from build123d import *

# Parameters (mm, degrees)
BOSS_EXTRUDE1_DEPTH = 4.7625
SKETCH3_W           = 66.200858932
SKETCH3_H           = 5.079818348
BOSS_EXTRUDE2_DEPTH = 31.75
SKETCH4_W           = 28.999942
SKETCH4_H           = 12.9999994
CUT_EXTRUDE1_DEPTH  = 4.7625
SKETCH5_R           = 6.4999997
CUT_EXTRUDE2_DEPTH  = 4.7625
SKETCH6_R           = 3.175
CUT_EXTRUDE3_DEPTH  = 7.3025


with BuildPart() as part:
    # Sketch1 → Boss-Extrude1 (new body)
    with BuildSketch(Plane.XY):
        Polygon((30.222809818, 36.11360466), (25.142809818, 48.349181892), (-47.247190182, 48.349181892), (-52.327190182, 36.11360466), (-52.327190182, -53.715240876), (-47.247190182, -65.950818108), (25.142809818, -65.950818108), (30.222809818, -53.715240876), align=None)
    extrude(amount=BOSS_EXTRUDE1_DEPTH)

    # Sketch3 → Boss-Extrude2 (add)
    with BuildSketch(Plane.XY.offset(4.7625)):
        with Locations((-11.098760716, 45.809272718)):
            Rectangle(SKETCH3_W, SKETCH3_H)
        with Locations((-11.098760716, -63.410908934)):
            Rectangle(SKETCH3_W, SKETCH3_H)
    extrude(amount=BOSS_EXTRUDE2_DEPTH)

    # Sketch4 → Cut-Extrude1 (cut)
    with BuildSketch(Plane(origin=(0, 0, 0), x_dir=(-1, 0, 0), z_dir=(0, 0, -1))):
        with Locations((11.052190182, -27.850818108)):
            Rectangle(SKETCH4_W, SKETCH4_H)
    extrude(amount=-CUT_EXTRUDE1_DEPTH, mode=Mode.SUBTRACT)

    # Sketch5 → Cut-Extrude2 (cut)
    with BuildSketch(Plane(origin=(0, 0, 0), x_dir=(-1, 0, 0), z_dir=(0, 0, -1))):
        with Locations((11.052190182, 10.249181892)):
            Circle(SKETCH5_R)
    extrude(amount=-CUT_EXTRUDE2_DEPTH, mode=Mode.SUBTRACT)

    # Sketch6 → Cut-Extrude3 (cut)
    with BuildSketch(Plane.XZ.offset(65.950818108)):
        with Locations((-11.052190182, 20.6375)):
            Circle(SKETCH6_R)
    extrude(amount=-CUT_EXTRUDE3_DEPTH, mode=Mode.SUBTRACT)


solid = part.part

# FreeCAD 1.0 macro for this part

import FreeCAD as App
import Part
import Sketcher
Q = App.Units.Quantity


def add_polygon(sketch, points):
    """Adds a closed chain of lines whose ends are joined by coincident constraints."""
    first, n = sketch.GeometryCount, len(points)
    for a, b in zip(points, points[1:] + points[:1]):
        sketch.addGeometry(Part.LineSegment(App.Vector(*a, 0), App.Vector(*b, 0)), False)
    for i in range(n):
        sketch.addConstraint(Sketcher.Constraint("Coincident", first + i, 2, first + (i + 1) % n, 1))

doc = App.newDocument("Part")
body = doc.addObject("PartDesign::Body", "Body")

sketch1 = body.newObject("Sketcher::SketchObject", "Sketch")
sketch1.AttachmentSupport = (doc.getObject("XY_Plane"), [""])
sketch1.MapMode = "FlatFace"
add_polygon(sketch1, [(30, 36), (25, 48), (-47, 48), (-52, 36), (-52, -54), (-47, -66), (25, -66), (30, -54)])
sketch1.addConstraint(Sketcher.Constraint("Horizontal", 1))
sketch1.addConstraint(Sketcher.Constraint("Vertical", 3))
sketch1.addConstraint(Sketcher.Constraint("Horizontal", 5))
sketch1.addConstraint(Sketcher.Constraint("Vertical", 7))
sketch1.addConstraint(Sketcher.Constraint("Parallel", 0, 4))
sketch1.addConstraint(Sketcher.Constraint("Parallel", 2, 6))
sketch1.addConstraint(Sketcher.Constraint("Horizontal", 3, 2, 6, 2))
sketch1.addConstraint(Sketcher.Constraint("Horizontal", 2, 2, 7, 2))
sketch1.addConstraint(Sketcher.Constraint("Vertical", 1, 2, 4, 2))
sketch1.addConstraint(Sketcher.Constraint("Vertical", 0, 2, 5, 2))
sketch1.addConstraint(Sketcher.Constraint("DistanceX", 1, 2, 1, 1, Q("2.85 in")))
sketch1.addConstraint(Sketcher.Constraint("DistanceX", 2, 2, 1, 2, Q("0.2 in")))
sketch1.addConstraint(Sketcher.Constraint("DistanceY", 4, 2, 1, 2, Q("4.5 in")))
sketch1.addConstraint(Sketcher.Constraint("DistanceY", 3, 2, 3, 1, 89.828846))
sketch1.addConstraint(Sketcher.Constraint("DistanceX", -1, 1, 0, 2, 25.14281))
sketch1.addConstraint(Sketcher.Constraint("DistanceY", -1, 1, 0, 2, 48.349182))
pad1 = body.newObject("PartDesign::Pad", "Pad")
pad1.Profile = sketch1
pad1.Length = Q("0.1875 in")

sketch2 = body.newObject("Sketcher::SketchObject", "Sketch001")
sketch2.AttachmentSupport = (doc.getObject("XY_Plane"), [""])
sketch2.MapMode = "FlatFace"
sketch2.AttachmentOffset = App.Placement(App.Vector(0, 0, 0.1875 * 25.4), App.Rotation())
add_polygon(sketch2, [(-44, 48), (-44, 43), (22, 43), (22, 48)])
add_polygon(sketch2, [(-44, -61), (-44, -66), (22, -66), (22, -61)])
sketch2.addConstraint(Sketcher.Constraint("Vertical", 0))
sketch2.addConstraint(Sketcher.Constraint("Horizontal", 1))
sketch2.addConstraint(Sketcher.Constraint("Vertical", 2))
sketch2.addConstraint(Sketcher.Constraint("Horizontal", 3))
sketch2.addConstraint(Sketcher.Constraint("Vertical", 4))
sketch2.addConstraint(Sketcher.Constraint("Horizontal", 5))
sketch2.addConstraint(Sketcher.Constraint("Vertical", 6))
sketch2.addConstraint(Sketcher.Constraint("Horizontal", 7))
sketch2.addConstraint(Sketcher.Constraint("Vertical", 3, 2, 4, 2))
sketch2.addConstraint(Sketcher.Constraint("Vertical", 2, 2, 5, 2))
sketch2.addConstraint(Sketcher.Constraint("Equal", 2, 4))
sketch2.addConstraint(Sketcher.Constraint("DistanceY", 4, 2, 3, 2, Q("4.5 in")))
sketch2.addConstraint(Sketcher.Constraint("DistanceX", 1, 1, 1, 2, 66.200859))
sketch2.addConstraint(Sketcher.Constraint("DistanceY", 0, 2, 0, 1, 5.079818))
sketch2.addConstraint(Sketcher.Constraint("DistanceY", 6, 2, -1, 1, 60.871))
sketch2.addConstraint(Sketcher.Constraint("DistanceX", 0, 2, -1, 1, 44.19919))
pad2 = body.newObject("PartDesign::Pad", "Pad001")
pad2.Profile = sketch2
pad2.Length = Q("1.25 in")

sketch3 = body.newObject("Sketcher::SketchObject", "Sketch002")
sketch3.AttachmentSupport = (doc.getObject("XY_Plane"), [""])
sketch3.MapMode = "FlatFace"
add_polygon(sketch3, [(3, -21), (3, -34), (-26, -34), (-26, -21)])
sketch3.addConstraint(Sketcher.Constraint("Vertical", 0))
sketch3.addConstraint(Sketcher.Constraint("Horizontal", 1))
sketch3.addConstraint(Sketcher.Constraint("Vertical", 2))
sketch3.addConstraint(Sketcher.Constraint("Horizontal", 3))
sketch3.addConstraint(Sketcher.Constraint("DistanceY", 0, 2, 0, 1, 12.999999))
sketch3.addConstraint(Sketcher.Constraint("DistanceX", 1, 2, 1, 1, 28.999942))
sketch3.addConstraint(Sketcher.Constraint("DistanceX", -1, 1, 0, 2, 3.447781))
sketch3.addConstraint(Sketcher.Constraint("DistanceY", 2, 2, -1, 1, 21.350818))
pocket1 = body.newObject("PartDesign::Pocket", "Pocket")
pocket1.Profile = sketch3
pocket1.Length = Q("0.1875 in")
pocket1.Reversed = True

sketch4 = body.newObject("Sketcher::SketchObject", "Sketch003")
sketch4.AttachmentSupport = (doc.getObject("XY_Plane"), [""])
sketch4.MapMode = "FlatFace"
sketch4.addGeometry(Part.Circle(App.Vector(-11, 10, 0), App.Vector(0, 0, 1), 6), False)
sketch4.addConstraint(Sketcher.Constraint("Diameter", 0, 12.999999))
sketch4.addConstraint(Sketcher.Constraint("DistanceX", 0, 3, -1, 1, 11.05219))
sketch4.addConstraint(Sketcher.Constraint("DistanceY", -1, 1, 0, 3, 10.249182))
pocket2 = body.newObject("PartDesign::Pocket", "Pocket001")
pocket2.Profile = sketch4
pocket2.Length = Q("0.1875 in")
pocket2.Reversed = True

sketch5 = body.newObject("Sketcher::SketchObject", "Sketch004")
sketch5.AttachmentSupport = (doc.getObject("XZ_Plane"), [""])
sketch5.MapMode = "FlatFace"
sketch5.AttachmentOffset = App.Placement(App.Vector(0, 0, 65.950818), App.Rotation())
sketch5.addGeometry(Part.Circle(App.Vector(-11.1, 20.6, 0), App.Vector(0, 0, 1), 3.2), False)
sketch5.addConstraint(Sketcher.Constraint("Diameter", 0, Q("0.25 in")))
sketch5.addConstraint(Sketcher.Constraint("DistanceY", -1, 1, 0, 3, Q("0.8125 in")))
sketch5.addConstraint(Sketcher.Constraint("DistanceX", 0, 3, -1, 1, 11.05219))
pocket3 = body.newObject("PartDesign::Pocket", "Pocket002")
pocket3.Profile = sketch5
pocket3.Length = Q("0.2875 in")

doc.recompute()
